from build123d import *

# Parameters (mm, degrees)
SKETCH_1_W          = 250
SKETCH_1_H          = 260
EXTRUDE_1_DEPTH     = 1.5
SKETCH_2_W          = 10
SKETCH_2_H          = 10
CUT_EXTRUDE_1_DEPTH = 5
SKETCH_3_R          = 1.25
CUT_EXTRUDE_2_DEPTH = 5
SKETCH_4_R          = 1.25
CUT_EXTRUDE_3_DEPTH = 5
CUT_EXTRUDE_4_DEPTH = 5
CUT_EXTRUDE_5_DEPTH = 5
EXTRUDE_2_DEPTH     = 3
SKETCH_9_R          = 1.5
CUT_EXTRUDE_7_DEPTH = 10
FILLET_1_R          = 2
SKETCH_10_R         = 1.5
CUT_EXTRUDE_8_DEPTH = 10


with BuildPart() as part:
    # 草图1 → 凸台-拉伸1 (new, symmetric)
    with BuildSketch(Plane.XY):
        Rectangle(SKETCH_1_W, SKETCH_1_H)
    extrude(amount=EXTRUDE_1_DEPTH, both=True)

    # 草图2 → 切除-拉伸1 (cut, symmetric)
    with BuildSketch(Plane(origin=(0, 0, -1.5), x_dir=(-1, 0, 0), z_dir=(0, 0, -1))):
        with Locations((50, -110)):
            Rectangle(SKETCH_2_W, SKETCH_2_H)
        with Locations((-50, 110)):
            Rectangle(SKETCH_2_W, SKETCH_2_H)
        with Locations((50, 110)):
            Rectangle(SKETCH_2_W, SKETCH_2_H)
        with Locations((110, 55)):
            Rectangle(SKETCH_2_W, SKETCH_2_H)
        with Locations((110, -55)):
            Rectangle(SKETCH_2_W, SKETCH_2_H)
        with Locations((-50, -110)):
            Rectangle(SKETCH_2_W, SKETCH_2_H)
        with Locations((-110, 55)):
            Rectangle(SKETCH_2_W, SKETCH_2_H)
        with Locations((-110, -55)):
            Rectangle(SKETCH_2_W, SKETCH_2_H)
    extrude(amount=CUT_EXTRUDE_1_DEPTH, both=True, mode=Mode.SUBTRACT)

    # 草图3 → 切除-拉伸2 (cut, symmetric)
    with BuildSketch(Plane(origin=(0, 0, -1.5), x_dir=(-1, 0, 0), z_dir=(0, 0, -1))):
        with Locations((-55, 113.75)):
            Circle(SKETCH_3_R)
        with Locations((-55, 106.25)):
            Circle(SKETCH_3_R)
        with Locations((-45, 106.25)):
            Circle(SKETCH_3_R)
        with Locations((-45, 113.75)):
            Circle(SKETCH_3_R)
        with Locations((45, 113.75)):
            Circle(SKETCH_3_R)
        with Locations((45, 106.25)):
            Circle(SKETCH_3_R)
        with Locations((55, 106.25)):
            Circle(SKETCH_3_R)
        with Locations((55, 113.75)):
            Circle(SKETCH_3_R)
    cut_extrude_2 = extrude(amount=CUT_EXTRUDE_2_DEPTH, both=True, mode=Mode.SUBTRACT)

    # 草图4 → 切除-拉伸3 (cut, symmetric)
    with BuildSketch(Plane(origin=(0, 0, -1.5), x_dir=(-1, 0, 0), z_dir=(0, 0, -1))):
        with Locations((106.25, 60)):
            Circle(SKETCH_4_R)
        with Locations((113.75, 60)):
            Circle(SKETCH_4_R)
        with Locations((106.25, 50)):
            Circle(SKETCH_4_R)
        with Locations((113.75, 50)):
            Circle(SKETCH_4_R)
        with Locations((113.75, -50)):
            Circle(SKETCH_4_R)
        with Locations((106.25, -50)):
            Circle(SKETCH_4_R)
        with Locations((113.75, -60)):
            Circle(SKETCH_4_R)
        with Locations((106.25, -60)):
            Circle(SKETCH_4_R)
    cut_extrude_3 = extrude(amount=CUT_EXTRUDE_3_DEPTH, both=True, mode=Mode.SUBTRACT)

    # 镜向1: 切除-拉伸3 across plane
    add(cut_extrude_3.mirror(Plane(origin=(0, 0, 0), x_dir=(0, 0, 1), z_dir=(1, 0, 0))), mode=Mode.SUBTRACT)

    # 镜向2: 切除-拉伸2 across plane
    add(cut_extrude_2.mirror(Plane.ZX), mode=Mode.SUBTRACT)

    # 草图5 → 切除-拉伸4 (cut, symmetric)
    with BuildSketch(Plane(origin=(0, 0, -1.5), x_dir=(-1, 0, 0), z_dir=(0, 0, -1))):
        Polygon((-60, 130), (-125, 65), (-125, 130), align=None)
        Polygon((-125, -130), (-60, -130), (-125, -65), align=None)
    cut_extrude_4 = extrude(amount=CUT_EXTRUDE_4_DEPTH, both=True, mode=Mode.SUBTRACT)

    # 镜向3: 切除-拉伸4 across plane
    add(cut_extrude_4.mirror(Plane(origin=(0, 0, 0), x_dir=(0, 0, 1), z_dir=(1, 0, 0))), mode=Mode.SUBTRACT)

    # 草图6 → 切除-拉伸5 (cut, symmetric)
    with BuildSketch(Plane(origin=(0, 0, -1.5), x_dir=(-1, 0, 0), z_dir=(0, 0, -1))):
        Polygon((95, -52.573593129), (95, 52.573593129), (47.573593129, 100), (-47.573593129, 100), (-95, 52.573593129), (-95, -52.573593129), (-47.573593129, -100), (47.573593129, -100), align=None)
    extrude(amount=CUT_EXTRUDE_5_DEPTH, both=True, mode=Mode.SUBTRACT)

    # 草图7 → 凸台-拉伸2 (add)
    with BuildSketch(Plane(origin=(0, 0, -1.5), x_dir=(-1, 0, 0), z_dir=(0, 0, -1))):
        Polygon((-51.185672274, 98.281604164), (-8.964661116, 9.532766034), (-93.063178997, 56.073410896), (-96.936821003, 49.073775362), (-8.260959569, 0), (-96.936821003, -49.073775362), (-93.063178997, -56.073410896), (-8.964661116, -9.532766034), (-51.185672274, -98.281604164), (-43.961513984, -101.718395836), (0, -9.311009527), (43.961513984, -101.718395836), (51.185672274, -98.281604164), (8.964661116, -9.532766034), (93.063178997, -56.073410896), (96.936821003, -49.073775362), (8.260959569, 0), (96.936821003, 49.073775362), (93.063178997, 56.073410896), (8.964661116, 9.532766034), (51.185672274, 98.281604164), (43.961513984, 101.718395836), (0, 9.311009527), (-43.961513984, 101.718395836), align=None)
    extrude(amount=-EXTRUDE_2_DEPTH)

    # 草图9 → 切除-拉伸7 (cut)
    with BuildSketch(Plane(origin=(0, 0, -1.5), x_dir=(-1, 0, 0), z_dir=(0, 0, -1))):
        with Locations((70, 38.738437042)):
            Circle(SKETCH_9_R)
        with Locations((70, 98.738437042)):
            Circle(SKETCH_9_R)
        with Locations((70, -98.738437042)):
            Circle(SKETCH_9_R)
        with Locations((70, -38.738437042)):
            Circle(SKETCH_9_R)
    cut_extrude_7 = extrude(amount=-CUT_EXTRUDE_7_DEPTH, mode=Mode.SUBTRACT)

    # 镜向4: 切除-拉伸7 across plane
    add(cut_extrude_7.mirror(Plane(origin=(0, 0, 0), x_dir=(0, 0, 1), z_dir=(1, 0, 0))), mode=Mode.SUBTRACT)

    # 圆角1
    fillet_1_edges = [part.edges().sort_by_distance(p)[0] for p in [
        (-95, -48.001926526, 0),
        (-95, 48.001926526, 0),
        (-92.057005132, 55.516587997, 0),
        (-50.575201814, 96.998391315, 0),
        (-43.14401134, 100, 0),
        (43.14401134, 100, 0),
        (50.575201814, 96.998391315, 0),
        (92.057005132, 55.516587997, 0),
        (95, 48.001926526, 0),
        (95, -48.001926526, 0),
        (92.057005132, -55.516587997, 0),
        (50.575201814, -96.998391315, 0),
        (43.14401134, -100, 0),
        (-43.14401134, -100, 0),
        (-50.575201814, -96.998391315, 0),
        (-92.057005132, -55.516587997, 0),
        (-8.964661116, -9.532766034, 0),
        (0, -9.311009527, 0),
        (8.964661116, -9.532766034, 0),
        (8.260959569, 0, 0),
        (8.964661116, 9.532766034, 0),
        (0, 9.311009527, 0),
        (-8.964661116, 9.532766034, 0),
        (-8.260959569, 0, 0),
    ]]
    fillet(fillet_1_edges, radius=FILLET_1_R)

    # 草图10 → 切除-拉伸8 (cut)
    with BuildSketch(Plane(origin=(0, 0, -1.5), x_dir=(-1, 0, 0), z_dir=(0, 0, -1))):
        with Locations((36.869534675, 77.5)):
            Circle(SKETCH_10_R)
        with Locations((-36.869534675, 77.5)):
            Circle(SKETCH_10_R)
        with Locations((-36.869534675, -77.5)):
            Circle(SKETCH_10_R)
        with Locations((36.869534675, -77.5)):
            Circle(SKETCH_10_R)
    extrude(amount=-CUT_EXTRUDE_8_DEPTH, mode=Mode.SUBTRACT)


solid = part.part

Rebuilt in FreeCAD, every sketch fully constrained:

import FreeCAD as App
import Part
import Sketcher
from FreeCAD import Vector


def edges_at(feature, points):
    """Names of the edges that pass closest to the given points."""
    edges = feature.Shape.Edges
    near = lambda p: min(range(len(edges)), key=lambda i: edges[i].distToShape(Part.Vertex(*p))[0])
    return sorted({f"Edge{near(p) + 1}" for p in points})

doc = App.newDocument("Part")
params = doc.addObject("Spreadsheet::Sheet", "Params")
for row, (alias, value) in enumerate([
    ("sketch1_width", "250 mm"),
    ("sketch1_height", "260 mm"),
    ("pad1_length", "3 mm"),
    ("sketch2_width", "10 mm"),
    ("pocket1_length", "10 mm"),
    ("sketch3_diameter", "2.5 mm"),
    ("pocket2_length", "10 mm"),
    ("sketch4_diameter", "2.5 mm"),
    ("pocket3_length", "10 mm"),
    ("sketch5_width", "65 mm"),
    ("pocket4_length", "10 mm"),
    ("pocket5_length", "10 mm"),
    ("sketch7_length", "8 mm"),
    ("pad2_length", "3 mm"),
    ("sketch8_diameter", "3 mm"),
    ("pocket6_length", "10 mm"),
    ("fillet_radius", "2 mm"),
    ("sketch9_diameter", "3 mm"),
    ("pocket7_length", "10 mm"),
], start=1):
    params.set(f"A{row}", alias)
    params.set(f"B{row}", "=" + value)
    params.setAlias(f"B{row}", alias)

body = doc.addObject("PartDesign::Body", "Body")

# Sketch on XY plane
sketch1 = body.newObject("Sketcher::SketchObject", "Sketch")
sketch1.AttachmentSupport = (doc.getObject("XY_Plane"), [""])
sketch1.MapMode = "FlatFace"
sketch1.addGeometry(Part.LineSegment(Vector(-125, 130, 0), Vector(-125, -130, 0)), False)
sketch1.addGeometry(Part.LineSegment(Vector(-125, -130, 0), Vector(125, -130, 0)), False)
sketch1.addGeometry(Part.LineSegment(Vector(125, -130, 0), Vector(125, 130, 0)), False)
sketch1.addGeometry(Part.LineSegment(Vector(125, 130, 0), Vector(-125, 130, 0)), False)
sketch1.addConstraint(Sketcher.Constraint("Coincident", 0, 2, 1, 1))
sketch1.addConstraint(Sketcher.Constraint("Coincident", 1, 2, 2, 1))
sketch1.addConstraint(Sketcher.Constraint("Coincident", 2, 2, 3, 1))
sketch1.addConstraint(Sketcher.Constraint("Coincident", 3, 2, 0, 1))
sketch1.addConstraint(Sketcher.Constraint("Vertical", 0))
sketch1.addConstraint(Sketcher.Constraint("Horizontal", 1))
sketch1.addConstraint(Sketcher.Constraint("Vertical", 2))
sketch1.addConstraint(Sketcher.Constraint("Horizontal", 3))
sketch1.addConstraint(Sketcher.Constraint("Symmetric", 0, 2, 2, 2, -1, 1))
sketch1.addConstraint(Sketcher.Constraint("DistanceX", 1, 1, 1, 2, 250.0))
sketch1.addConstraint(Sketcher.Constraint("DistanceY", 0, 2, 0, 1, 260.0))
sketch1.setExpression("Constraints[9]", "Params.sketch1_width")
sketch1.setExpression("Constraints[10]", "Params.sketch1_height")
pad1 = body.newObject("PartDesign::Pad", "Pad")
pad1.Profile = sketch1
pad1.setExpression("Length", "Params.pad1_length")
pad1.Midplane = True

# Sketch on XY plane
sketch2 = body.newObject("Sketcher::SketchObject", "Sketch001")
sketch2.AttachmentSupport = (doc.getObject("XY_Plane"), [""])
sketch2.MapMode = "FlatFace"
sketch2.AttachmentOffset = App.Placement(Vector(0, 0, -1.5), App.Rotation())
sketch2.addGeometry(Part.LineSegment(Vector(-45, -105, 0), Vector(-45, -115, 0)), False)
sketch2.addGeometry(Part.LineSegment(Vector(-45, -115, 0), Vector(-55, -115, 0)), False)
sketch2.addGeometry(Part.LineSegment(Vector(-55, -115, 0), Vector(-55, -105, 0)), False)
sketch2.addGeometry(Part.LineSegment(Vector(-55, -105, 0), Vector(-45, -105, 0)), False)
sketch2.addGeometry(Part.LineSegment(Vector(55, 115, 0), Vector(55, 105, 0)), False)
sketch2.addGeometry(Part.LineSegment(Vector(55, 105, 0), Vector(45, 105, 0)), False)
sketch2.addGeometry(Part.LineSegment(Vector(45, 105, 0), Vector(45, 115, 0)), False)
sketch2.addGeometry(Part.LineSegment(Vector(45, 115, 0), Vector(55, 115, 0)), False)
sketch2.addGeometry(Part.LineSegment(Vector(-45, 115, 0), Vector(-45, 105, 0)), False)
sketch2.addGeometry(Part.LineSegment(Vector(-45, 105, 0), Vector(-55, 105, 0)), False)
sketch2.addGeometry(Part.LineSegment(Vector(-55, 105, 0), Vector(-55, 115, 0)), False)
sketch2.addGeometry(Part.LineSegment(Vector(-55, 115, 0), Vector(-45, 115, 0)), False)
sketch2.addGeometry(Part.LineSegment(Vector(-105, 60, 0), Vector(-105, 50, 0)), False)
sketch2.addGeometry(Part.LineSegment(Vector(-105, 50, 0), Vector(-115, 50, 0)), False)
sketch2.addGeometry(Part.LineSegment(Vector(-115, 50, 0), Vector(-115, 60, 0)), False)
sketch2.addGeometry(Part.LineSegment(Vector(-115, 60, 0), Vector(-105, 60, 0)), False)
sketch2.addGeometry(Part.LineSegment(Vector(-105, -50, 0), Vector(-105, -60, 0)), False)
sketch2.addGeometry(Part.LineSegment(Vector(-105, -60, 0), Vector(-115, -60, 0)), False)
sketch2.addGeometry(Part.LineSegment(Vector(-115, -60, 0), Vector(-115, -50, 0)), False)
sketch2.addGeometry(Part.LineSegment(Vector(-115, -50, 0), Vector(-105, -50, 0)), False)
sketch2.addGeometry(Part.LineSegment(Vector(55, -105, 0), Vector(55, -115, 0)), False)
sketch2.addGeometry(Part.LineSegment(Vector(55, -115, 0), Vector(45, -115, 0)), False)
sketch2.addGeometry(Part.LineSegment(Vector(45, -115, 0), Vector(45, -105, 0)), False)
sketch2.addGeometry(Part.LineSegment(Vector(45, -105, 0), Vector(55, -105, 0)), False)
sketch2.addGeometry(Part.LineSegment(Vector(115, 60, 0), Vector(115, 50, 0)), False)
sketch2.addGeometry(Part.LineSegment(Vector(115, 50, 0), Vector(105, 50, 0)), False)
sketch2.addGeometry(Part.LineSegment(Vector(105, 50, 0), Vector(105, 60, 0)), False)
sketch2.addGeometry(Part.LineSegment(Vector(105, 60, 0), Vector(115, 60, 0)), False)
sketch2.addGeometry(Part.LineSegment(Vector(115, -50, 0), Vector(115, -60, 0)), False)
sketch2.addGeometry(Part.LineSegment(Vector(115, -60, 0), Vector(105, -60, 0)), False)
sketch2.addGeometry(Part.LineSegment(Vector(105, -60, 0), Vector(105, -50, 0)), False)
sketch2.addGeometry(Part.LineSegment(Vector(105, -50, 0), Vector(115, -50, 0)), False)
sketch2.addConstraint(Sketcher.Constraint("Coincident", 0, 2, 1, 1))
sketch2.addConstraint(Sketcher.Constraint("Coincident", 1, 2, 2, 1))
sketch2.addConstraint(Sketcher.Constraint("Coincident", 2, 2, 3, 1))
sketch2.addConstraint(Sketcher.Constraint("Coincident", 3, 2, 0, 1))
sketch2.addConstraint(Sketcher.Constraint("Coincident", 4, 2, 5, 1))
sketch2.addConstraint(Sketcher.Constraint("Coincident", 5, 2, 6, 1))
sketch2.addConstraint(Sketcher.Constraint("Coincident", 6, 2, 7, 1))
sketch2.addConstraint(Sketcher.Constraint("Coincident", 7, 2, 4, 1))
sketch2.addConstraint(Sketcher.Constraint("Coincident", 8, 2, 9, 1))
sketch2.addConstraint(Sketcher.Constraint("Coincident", 9, 2, 10, 1))
sketch2.addConstraint(Sketcher.Constraint("Coincident", 10, 2, 11, 1))
sketch2.addConstraint(Sketcher.Constraint("Coincident", 11, 2, 8, 1))
sketch2.addConstraint(Sketcher.Constraint("Coincident", 12, 2, 13, 1))
sketch2.addConstraint(Sketcher.Constraint("Coincident", 13, 2, 14, 1))
sketch2.addConstraint(Sketcher.Constraint("Coincident", 14, 2, 15, 1))
sketch2.addConstraint(Sketcher.Constraint("Coincident", 15, 2, 12, 1))
sketch2.addConstraint(Sketcher.Constraint("Coincident", 16, 2, 17, 1))
sketch2.addConstraint(Sketcher.Constraint("Coincident", 17, 2, 18, 1))
sketch2.addConstraint(Sketcher.Constraint("Coincident", 18, 2, 19, 1))
sketch2.addConstraint(Sketcher.Constraint("Coincident", 19, 2, 16, 1))
sketch2.addConstraint(Sketcher.Constraint("Coincident", 20, 2, 21, 1))
sketch2.addConstraint(Sketcher.Constraint("Coincident", 21, 2, 22, 1))
sketch2.addConstraint(Sketcher.Constraint("Coincident", 22, 2, 23, 1))
sketch2.addConstraint(Sketcher.Constraint("Coincident", 23, 2, 20, 1))
sketch2.addConstraint(Sketcher.Constraint("Coincident", 24, 2, 25, 1))
sketch2.addConstraint(Sketcher.Constraint("Coincident", 25, 2, 26, 1))
sketch2.addConstraint(Sketcher.Constraint("Coincident", 26, 2, 27, 1))
sketch2.addConstraint(Sketcher.Constraint("Coincident", 27, 2, 24, 1))
sketch2.addConstraint(Sketcher.Constraint("Coincident", 28, 2, 29, 1))
sketch2.addConstraint(Sketcher.Constraint("Coincident", 29, 2, 30, 1))
sketch2.addConstraint(Sketcher.Constraint("Coincident", 30, 2, 31, 1))
sketch2.addConstraint(Sketcher.Constraint("Coincident", 31, 2, 28, 1))
sketch2.addConstraint(Sketcher.Constraint("Vertical", 0))
sketch2.addConstraint(Sketcher.Constraint("Horizontal", 1))
sketch2.addConstraint(Sketcher.Constraint("Vertical", 2))
sketch2.addConstraint(Sketcher.Constraint("Horizontal", 3))
sketch2.addConstraint(Sketcher.Constraint("Vertical", 4))
sketch2.addConstraint(Sketcher.Constraint("Horizontal", 5))
sketch2.addConstraint(Sketcher.Constraint("Vertical", 6))
sketch2.addConstraint(Sketcher.Constraint("Horizontal", 7))
sketch2.addConstraint(Sketcher.Constraint("Vertical", 8))
sketch2.addConstraint(Sketcher.Constraint("Horizontal", 9))
sketch2.addConstraint(Sketcher.Constraint("Vertical", 10))
sketch2.addConstraint(Sketcher.Constraint("Horizontal", 11))
sketch2.addConstraint(Sketcher.Constraint("Vertical", 12))
sketch2.addConstraint(Sketcher.Constraint("Horizontal", 13))
sketch2.addConstraint(Sketcher.Constraint("Vertical", 14))
sketch2.addConstraint(Sketcher.Constraint("Horizontal", 15))
sketch2.addConstraint(Sketcher.Constraint("Vertical", 16))
sketch2.addConstraint(Sketcher.Constraint("Horizontal", 17))
sketch2.addConstraint(Sketcher.Constraint("Vertical", 18))
sketch2.addConstraint(Sketcher.Constraint("Horizontal", 19))
sketch2.addConstraint(Sketcher.Constraint("Vertical", 20))
sketch2.addConstraint(Sketcher.Constraint("Horizontal", 21))
sketch2.addConstraint(Sketcher.Constraint("Vertical", 22))
sketch2.addConstraint(Sketcher.Constraint("Horizontal", 23))
sketch2.addConstraint(Sketcher.Constraint("Vertical", 24))
sketch2.addConstraint(Sketcher.Constraint("Horizontal", 25))
sketch2.addConstraint(Sketcher.Constraint("Vertical", 26))
sketch2.addConstraint(Sketcher.Constraint("Horizontal", 27))
sketch2.addConstraint(Sketcher.Constraint("Vertical", 28))
sketch2.addConstraint(Sketcher.Constraint("Horizontal", 29))
sketch2.addConstraint(Sketcher.Constraint("Vertical", 30))
sketch2.addConstraint(Sketcher.Constraint("Horizontal", 31))
sketch2.addConstraint(Sketcher.Constraint("Symmetric", 2, 2, 4, 2, -1, 1))
sketch2.addConstraint(Sketcher.Constraint("Symmetric", 0, 2, 6, 2, -1, 1))
sketch2.addConstraint(Sketcher.Constraint("Symmetric", 10, 2, 20, 2, -1, 1))
sketch2.addConstraint(Sketcher.Constraint("Symmetric", 8, 2, 22, 2, -1, 1))
sketch2.addConstraint(Sketcher.Constraint("Symmetric", 18, 2, 24, 2, -1, 1))
sketch2.addConstraint(Sketcher.Constraint("Symmetric", 16, 2, 26, 2, -1, 1))
sketch2.addConstraint(Sketcher.Constraint("Symmetric", 14, 2, 28, 2, -1, 1))
sketch2.addConstraint(Sketcher.Constraint("Symmetric", 12, 2, 30, 2, -1, 1))
sketch2.addConstraint(Sketcher.Constraint("Symmetric", 5, 2, 8, 2, -2))
sketch2.addConstraint(Sketcher.Constraint("Symmetric", 7, 2, 10, 2, -2))
sketch2.addConstraint(Sketcher.Constraint("Symmetric", 13, 2, 24, 2, -2))
sketch2.addConstraint(Sketcher.Constraint("Symmetric", 15, 2, 26, 2, -2))
sketch2.addConstraint(Sketcher.Constraint("Equal", 11, 13))
sketch2.addConstraint(Sketcher.Constraint("Equal", 31, 0))
sketch2.addConstraint(Sketcher.Constraint("Equal", 10, 12))
sketch2.addConstraint(Sketcher.Constraint("DistanceX", 1, 2, 1, 1, 10.0))
sketch2.addConstraint(Sketcher.Constraint("DistanceX", 0, 2, -1, 1, 45.0))
sketch2.addConstraint(Sketcher.Constraint("DistanceY", 0, 2, -1, 1, 115.0))
sketch2.addConstraint(Sketcher.Constraint("DistanceX", 12, 2, -1, 1, 105.0))
sketch2.addConstraint(Sketcher.Constraint("DistanceY", -1, 1, 12, 2, 50.0))
sketch2.setExpression("Constraints[79]", "Params.sketch2_width")
pocket1 = body.newObject("PartDesign::Pocket", "Pocket")
pocket1.Profile = sketch2
pocket1.setExpression("Length", "Params.pocket1_length")
pocket1.Midplane = True

# Sketch on XY plane
sketch3 = body.newObject("Sketcher::SketchObject", "Sketch002")
sketch3.AttachmentSupport = (doc.getObject("XY_Plane"), [""])
sketch3.MapMode = "FlatFace"
sketch3.AttachmentOffset = App.Placement(Vector(0, 0, -1.5), App.Rotation())
sketch3.addGeometry(Part.Circle(Vector(55, 113.8, 0), Vector(0, 0, 1), 1.2), False)
sketch3.addGeometry(Part.Circle(Vector(55, 106.2, 0), Vector(0, 0, 1), 1.2), False)
sketch3.addGeometry(Part.Circle(Vector(45, 106.2, 0), Vector(0, 0, 1), 1.2), False)
sketch3.addGeometry(Part.Circle(Vector(45, 113.8, 0), Vector(0, 0, 1), 1.2), False)
sketch3.addGeometry(Part.Circle(Vector(-45, 113.8, 0), Vector(0, 0, 1), 1.2), False)
sketch3.addGeometry(Part.Circle(Vector(-45, 106.2, 0), Vector(0, 0, 1), 1.2), False)
sketch3.addGeometry(Part.Circle(Vector(-55, 106.2, 0), Vector(0, 0, 1), 1.2), False)
sketch3.addGeometry(Part.Circle(Vector(-55, 113.8, 0), Vector(0, 0, 1), 1.2), False)
sketch3.addConstraint(Sketcher.Constraint("Equal", 0, 1))
sketch3.addConstraint(Sketcher.Constraint("Equal", 1, 2))
sketch3.addConstraint(Sketcher.Constraint("Equal", 2, 3))
sketch3.addConstraint(Sketcher.Constraint("Equal", 3, 4))
sketch3.addConstraint(Sketcher.Constraint("Equal", 4, 5))
sketch3.addConstraint(Sketcher.Constraint("Equal", 5, 6))
sketch3.addConstraint(Sketcher.Constraint("Equal", 6, 7))
sketch3.addConstraint(Sketcher.Constraint("Symmetric", 3, 3, 4, 3, -2))
sketch3.addConstraint(Sketcher.Constraint("Symmetric", 2, 3, 5, 3, -2))
sketch3.addConstraint(Sketcher.Constraint("Symmetric", 1, 3, 6, 3, -2))
sketch3.addConstraint(Sketcher.Constraint("Symmetric", 0, 3, 7, 3, -2))
sketch3.addConstraint(Sketcher.Constraint("Horizontal", 1, 3, 2, 3))
sketch3.addConstraint(Sketcher.Constraint("Horizontal", 0, 3, 3, 3))
sketch3.addConstraint(Sketcher.Constraint("Vertical", 0, 3, 1, 3))
sketch3.addConstraint(Sketcher.Constraint("Vertical", 2, 3, 3, 3))
sketch3.addConstraint(Sketcher.Constraint("Diameter", 0, 2.5))
sketch3.addConstraint(Sketcher.Constraint("DistanceX", -1, 1, 0, 3, 55.0))
sketch3.addConstraint(Sketcher.Constraint("DistanceX", -1, 1, 2, 3, 45.0))
sketch3.addConstraint(Sketcher.Constraint("DistanceY", 1, 3, 0, 3, 7.5))
sketch3.addConstraint(Sketcher.Constraint("DistanceY", -1, 1, 0, 3, 113.75))
sketch3.setExpression("Constraints[15]", "Params.sketch3_diameter")
pocket2 = body.newObject("PartDesign::Pocket", "Pocket001")
pocket2.Profile = sketch3
pocket2.setExpression("Length", "Params.pocket2_length")
pocket2.Midplane = True

# Sketch on XY plane
sketch4 = body.newObject("Sketcher::SketchObject", "Sketch003")
sketch4.AttachmentSupport = (doc.getObject("XY_Plane"), [""])
sketch4.MapMode = "FlatFace"
sketch4.AttachmentOffset = App.Placement(Vector(0, 0, -1.5), App.Rotation())
sketch4.addGeometry(Part.Circle(Vector(-106.2, 60, 0), Vector(0, 0, 1), 1.2), False)
sketch4.addGeometry(Part.Circle(Vector(-113.8, 60, 0), Vector(0, 0, 1), 1.2), False)
sketch4.addGeometry(Part.Circle(Vector(-106.2, 50, 0), Vector(0, 0, 1), 1.2), False)
sketch4.addGeometry(Part.Circle(Vector(-113.8, 50, 0), Vector(0, 0, 1), 1.2), False)
sketch4.addGeometry(Part.Circle(Vector(-113.8, -50, 0), Vector(0, 0, 1), 1.2), False)
sketch4.addGeometry(Part.Circle(Vector(-106.2, -50, 0), Vector(0, 0, 1), 1.2), False)
sketch4.addGeometry(Part.Circle(Vector(-113.8, -60, 0), Vector(0, 0, 1), 1.2), False)
sketch4.addGeometry(Part.Circle(Vector(-106.2, -60, 0), Vector(0, 0, 1), 1.2), False)
sketch4.addConstraint(Sketcher.Constraint("Equal", 0, 1))
sketch4.addConstraint(Sketcher.Constraint("Equal", 1, 2))
sketch4.addConstraint(Sketcher.Constraint("Equal", 2, 3))
sketch4.addConstraint(Sketcher.Constraint("Equal", 3, 4))
sketch4.addConstraint(Sketcher.Constraint("Equal", 4, 5))
sketch4.addConstraint(Sketcher.Constraint("Equal", 5, 6))
sketch4.addConstraint(Sketcher.Constraint("Equal", 6, 7))
sketch4.addConstraint(Sketcher.Constraint("Symmetric", 3, 3, 4, 3, -1))
sketch4.addConstraint(Sketcher.Constraint("Symmetric", 2, 3, 5, 3, -1))
sketch4.addConstraint(Sketcher.Constraint("Symmetric", 1, 3, 6, 3, -1))
sketch4.addConstraint(Sketcher.Constraint("Symmetric", 0, 3, 7, 3, -1))
sketch4.addConstraint(Sketcher.Constraint("Horizontal", 0, 3, 1, 3))
sketch4.addConstraint(Sketcher.Constraint("Horizontal", 2, 3, 3, 3))
sketch4.addConstraint(Sketcher.Constraint("Vertical", 0, 3, 2, 3))
sketch4.addConstraint(Sketcher.Constraint("Vertical", 1, 3, 3, 3))
sketch4.addConstraint(Sketcher.Constraint("Diameter", 0, 2.5))
sketch4.addConstraint(Sketcher.Constraint("DistanceY", -1, 1, 0, 3, 60.0))
sketch4.addConstraint(Sketcher.Constraint("DistanceY", -1, 1, 2, 3, 50.0))
sketch4.addConstraint(Sketcher.Constraint("DistanceX", 1, 3, 0, 3, 7.5))
sketch4.addConstraint(Sketcher.Constraint("DistanceX", 0, 3, -1, 1, 106.25))
sketch4.setExpression("Constraints[15]", "Params.sketch4_diameter")
pocket3 = body.newObject("PartDesign::Pocket", "Pocket002")
pocket3.Profile = sketch4
pocket3.setExpression("Length", "Params.pocket3_length")
pocket3.Midplane = True
doc.recompute()

mirrored = body.newObject("PartDesign::Mirrored", "Mirrored")
mirrored.Originals = [pocket3]
mirrored.MirrorPlane = (doc.getObject("YZ_Plane"), [""])
body.Tip = mirrored
doc.recompute()

mirrored2 = body.newObject("PartDesign::Mirrored", "Mirrored001")
mirrored2.Originals = [pocket2]
mirrored2.MirrorPlane = (doc.getObject("XZ_Plane"), [""])
body.Tip = mirrored2

# Sketch on XY plane
sketch5 = body.newObject("Sketcher::SketchObject", "Sketch004")
sketch5.AttachmentSupport = (doc.getObject("XY_Plane"), [""])
sketch5.MapMode = "FlatFace"
sketch5.AttachmentOffset = App.Placement(Vector(0, 0, -1.5), App.Rotation())
sketch5.addGeometry(Part.LineSegment(Vector(125, 65, 0), Vector(60, 130, 0)), False)
sketch5.addGeometry(Part.LineSegment(Vector(60, 130, 0), Vector(125, 130, 0)), False)
sketch5.addGeometry(Part.LineSegment(Vector(125, 130, 0), Vector(125, 65, 0)), False)
sketch5.addGeometry(Part.LineSegment(Vector(125, -130, 0), Vector(60, -130, 0)), False)
sketch5.addGeometry(Part.LineSegment(Vector(60, -130, 0), Vector(125, -65, 0)), False)
sketch5.addGeometry(Part.LineSegment(Vector(125, -65, 0), Vector(125, -130, 0)), False)
sketch5.addConstraint(Sketcher.Constraint("Coincident", 0, 2, 1, 1))
sketch5.addConstraint(Sketcher.Constraint("Coincident", 1, 2, 2, 1))
sketch5.addConstraint(Sketcher.Constraint("Coincident", 2, 2, 0, 1))
sketch5.addConstraint(Sketcher.Constraint("Coincident", 3, 2, 4, 1))
sketch5.addConstraint(Sketcher.Constraint("Coincident", 4, 2, 5, 1))
sketch5.addConstraint(Sketcher.Constraint("Coincident", 5, 2, 3, 1))
sketch5.addConstraint(Sketcher.Constraint("Horizontal", 1))
sketch5.addConstraint(Sketcher.Constraint("Vertical", 2))
sketch5.addConstraint(Sketcher.Constraint("Horizontal", 3))
sketch5.addConstraint(Sketcher.Constraint("Vertical", 5))
sketch5.addConstraint(Sketcher.Constraint("Symmetric", 0, 2, 3, 2, -1))
sketch5.addConstraint(Sketcher.Constraint("Symmetric", 2, 2, 4, 2, -1))
sketch5.addConstraint(Sketcher.Constraint("Perpendicular", 0, 4))
sketch5.addConstraint(Sketcher.Constraint("DistanceX", 1, 1, 1, 2, 65.0))
sketch5.addConstraint(Sketcher.Constraint("DistanceX", -1, 1, 0, 2, 60.0))
sketch5.addConstraint(Sketcher.Constraint("DistanceY", -1, 1, 0, 2, 130.0))
sketch5.setExpression("Constraints[13]", "Params.sketch5_width")
pocket4 = body.newObject("PartDesign::Pocket", "Pocket003")
pocket4.Profile = sketch5
pocket4.setExpression("Length", "Params.pocket4_length")
pocket4.Midplane = True
doc.recompute()

mirrored3 = body.newObject("PartDesign::Mirrored", "Mirrored002")
mirrored3.Originals = [pocket4]
mirrored3.MirrorPlane = (doc.getObject("YZ_Plane"), [""])
body.Tip = mirrored3

# Sketch on XY plane
sketch6 = body.newObject("Sketcher::SketchObject", "Sketch005")
sketch6.AttachmentSupport = (doc.getObject("XY_Plane"), [""])
sketch6.MapMode = "FlatFace"
sketch6.AttachmentOffset = App.Placement(Vector(0, 0, -1.5), App.Rotation())
sketch6.addGeometry(Part.LineSegment(Vector(-95, -53, 0), Vector(-95, 53, 0)), False)
sketch6.addGeometry(Part.LineSegment(Vector(-95, 53, 0), Vector(-48, 100, 0)), False)
sketch6.addGeometry(Part.LineSegment(Vector(-48, 100, 0), Vector(48, 100, 0)), False)
sketch6.addGeometry(Part.LineSegment(Vector(48, 100, 0), Vector(95, 53, 0)), False)
sketch6.addGeometry(Part.LineSegment(Vector(95, 53, 0), Vector(95, -53, 0)), False)
sketch6.addGeometry(Part.LineSegment(Vector(95, -53, 0), Vector(48, -100, 0)), False)
sketch6.addGeometry(Part.LineSegment(Vector(48, -100, 0), Vector(-48, -100, 0)), False)
sketch6.addGeometry(Part.LineSegment(Vector(-48, -100, 0), Vector(-95, -53, 0)), False)
sketch6.addConstraint(Sketcher.Constraint("Coincident", 0, 2, 1, 1))
sketch6.addConstraint(Sketcher.Constraint("Coincident", 1, 2, 2, 1))
sketch6.addConstraint(Sketcher.Constraint("Coincident", 2, 2, 3, 1))
sketch6.addConstraint(Sketcher.Constraint("Coincident", 3, 2, 4, 1))
sketch6.addConstraint(Sketcher.Constraint("Coincident", 4, 2, 5, 1))
sketch6.addConstraint(Sketcher.Constraint("Coincident", 5, 2, 6, 1))
sketch6.addConstraint(Sketcher.Constraint("Coincident", 6, 2, 7, 1))
sketch6.addConstraint(Sketcher.Constraint("Coincident", 7, 2, 0, 1))
sketch6.addConstraint(Sketcher.Constraint("Vertical", 0))
sketch6.addConstraint(Sketcher.Constraint("Horizontal", 2))
sketch6.addConstraint(Sketcher.Constraint("Vertical", 4))
sketch6.addConstraint(Sketcher.Constraint("Horizontal", 6))
sketch6.addConstraint(Sketcher.Constraint("Symmetric", 0, 2, 4, 2, -1, 1))
sketch6.addConstraint(Sketcher.Constraint("Symmetric", 1, 2, 5, 2, -1, 1))
sketch6.addConstraint(Sketcher.Constraint("Perpendicular", 1, 3))
sketch6.addConstraint(Sketcher.Constraint("Perpendicular", 5, 7))
sketch6.addConstraint(Sketcher.Constraint("Horizontal", 0, 2, 3, 2))
sketch6.addConstraint(Sketcher.Constraint("Horizontal", 4, 2, 7, 2))
sketch6.addConstraint(Sketcher.Constraint("Vertical", 2, 2, 5, 2))
sketch6.addConstraint(Sketcher.Constraint("DistanceX", 0, 2, -1, 1, 95.0))
sketch6.addConstraint(Sketcher.Constraint("DistanceY", -1, 1, 1, 2, 100.0))
sketch6.addConstraint(Sketcher.Constraint("DistanceX", 2, 1, 2, 2, 95.147186))
pocket5 = body.newObject("PartDesign::Pocket", "Pocket004")
pocket5.Profile = sketch6
pocket5.setExpression("Length", "Params.pocket5_length")
pocket5.Midplane = True

# Sketch on XY plane
sketch7 = body.newObject("Sketcher::SketchObject", "Sketch006")
sketch7.AttachmentSupport = (doc.getObject("XY_Plane"), [""])
sketch7.MapMode = "FlatFace"
sketch7.AttachmentOffset = App.Placement(Vector(0, 0, -1.5), App.Rotation())
sketch7.addGeometry(Part.LineSegment(Vector(51, 98, 0), Vector(9, 10, 0)), False)
sketch7.addGeometry(Part.LineSegment(Vector(9, 10, 0), Vector(93, 56, 0)), False)
sketch7.addGeometry(Part.LineSegment(Vector(93, 56, 0), Vector(97, 49, 0)), False)
sketch7.addGeometry(Part.LineSegment(Vector(97, 49, 0), Vector(8, 0, 0)), False)
sketch7.addGeometry(Part.LineSegment(Vector(8, 0, 0), Vector(97, -49, 0)), False)
sketch7.addGeometry(Part.LineSegment(Vector(97, -49, 0), Vector(93, -56, 0)), False)
sketch7.addGeometry(Part.LineSegment(Vector(93, -56, 0), Vector(9, -10, 0)), False)
sketch7.addGeometry(Part.LineSegment(Vector(9, -10, 0), Vector(51, -98, 0)), False)
sketch7.addGeometry(Part.LineSegment(Vector(51, -98, 0), Vector(44, -102, 0)), False)
sketch7.addGeometry(Part.LineSegment(Vector(44, -102, 0), Vector(0, -9, 0)), False)
sketch7.addGeometry(Part.LineSegment(Vector(0, -9, 0), Vector(-44, -102, 0)), False)
sketch7.addGeometry(Part.LineSegment(Vector(-44, -102, 0), Vector(-51, -98, 0)), False)
sketch7.addGeometry(Part.LineSegment(Vector(-51, -98, 0), Vector(-9, -10, 0)), False)
sketch7.addGeometry(Part.LineSegment(Vector(-9, -10, 0), Vector(-93, -56, 0)), False)
sketch7.addGeometry(Part.LineSegment(Vector(-93, -56, 0), Vector(-97, -49, 0)), False)
sketch7.addGeometry(Part.LineSegment(Vector(-97, -49, 0), Vector(-8, 0, 0)), False)
sketch7.addGeometry(Part.LineSegment(Vector(-8, 0, 0), Vector(-97, 49, 0)), False)
sketch7.addGeometry(Part.LineSegment(Vector(-97, 49, 0), Vector(-93, 56, 0)), False)
sketch7.addGeometry(Part.LineSegment(Vector(-93, 56, 0), Vector(-9, 10, 0)), False)
sketch7.addGeometry(Part.LineSegment(Vector(-9, 10, 0), Vector(-51, 98, 0)), False)
sketch7.addGeometry(Part.LineSegment(Vector(-51, 98, 0), Vector(-44, 102, 0)), False)
sketch7.addGeometry(Part.LineSegment(Vector(-44, 102, 0), Vector(0, 9, 0)), False)
sketch7.addGeometry(Part.LineSegment(Vector(0, 9, 0), Vector(44, 102, 0)), False)
sketch7.addGeometry(Part.LineSegment(Vector(44, 102, 0), Vector(51, 98, 0)), False)
sketch7.addConstraint(Sketcher.Constraint("Coincident", 0, 2, 1, 1))
sketch7.addConstraint(Sketcher.Constraint("Coincident", 1, 2, 2, 1))
sketch7.addConstraint(Sketcher.Constraint("Coincident", 2, 2, 3, 1))
sketch7.addConstraint(Sketcher.Constraint("Coincident", 3, 2, 4, 1))
sketch7.addConstraint(Sketcher.Constraint("Coincident", 4, 2, 5, 1))
sketch7.addConstraint(Sketcher.Constraint("Coincident", 5, 2, 6, 1))
sketch7.addConstraint(Sketcher.Constraint("Coincident", 6, 2, 7, 1))
sketch7.addConstraint(Sketcher.Constraint("Coincident", 7, 2, 8, 1))
sketch7.addConstraint(Sketcher.Constraint("Coincident", 8, 2, 9, 1))
sketch7.addConstraint(Sketcher.Constraint("Coincident", 9, 2, 10, 1))
sketch7.addConstraint(Sketcher.Constraint("Coincident", 10, 2, 11, 1))
sketch7.addConstraint(Sketcher.Constraint("Coincident", 11, 2, 12, 1))
sketch7.addConstraint(Sketcher.Constraint("Coincident", 12, 2, 13, 1))
sketch7.addConstraint(Sketcher.Constraint("Coincident", 13, 2, 14, 1))
sketch7.addConstraint(Sketcher.Constraint("Coincident", 14, 2, 15, 1))
sketch7.addConstraint(Sketcher.Constraint("Coincident", 15, 2, 16, 1))
sketch7.addConstraint(Sketcher.Constraint("Coincident", 16, 2, 17, 1))
sketch7.addConstraint(Sketcher.Constraint("Coincident", 17, 2, 18, 1))
sketch7.addConstraint(Sketcher.Constraint("Coincident", 18, 2, 19, 1))
sketch7.addConstraint(Sketcher.Constraint("Coincident", 19, 2, 20, 1))
sketch7.addConstraint(Sketcher.Constraint("Coincident", 20, 2, 21, 1))
sketch7.addConstraint(Sketcher.Constraint("Coincident", 21, 2, 22, 1))
sketch7.addConstraint(Sketcher.Constraint("Coincident", 22, 2, 23, 1))
sketch7.addConstraint(Sketcher.Constraint("Coincident", 23, 2, 0, 1))
sketch7.addConstraint(Sketcher.Constraint("Symmetric", 0, 2, 12, 2, -1, 1))
sketch7.addConstraint(Sketcher.Constraint("Symmetric", 1, 2, 13, 2, -1, 1))
sketch7.addConstraint(Sketcher.Constraint("Symmetric", 2, 2, 14, 2, -1, 1))
sketch7.addConstraint(Sketcher.Constraint("Symmetric", 3, 2, 15, 2, -1, 1))
sketch7.addConstraint(Sketcher.Constraint("Symmetric", 4, 2, 16, 2, -1, 1))
sketch7.addConstraint(Sketcher.Constraint("Symmetric", 5, 2, 17, 2, -1, 1))
sketch7.addConstraint(Sketcher.Constraint("Symmetric", 6, 2, 18, 2, -1, 1))
sketch7.addConstraint(Sketcher.Constraint("Symmetric", 7, 2, 19, 2, -1, 1))
sketch7.addConstraint(Sketcher.Constraint("Symmetric", 8, 2, 20, 2, -1, 1))
sketch7.addConstraint(Sketcher.Constraint("Symmetric", 9, 2, 21, 2, -1, 1))
sketch7.addConstraint(Sketcher.Constraint("Symmetric", 10, 2, 22, 2, -1, 1))
sketch7.addConstraint(Sketcher.Constraint("Symmetric", 11, 2, 23, 2, -1, 1))
sketch7.addConstraint(Sketcher.Constraint("Symmetric", 8, 2, 10, 2, -2))
sketch7.addConstraint(Sketcher.Constraint("Symmetric", 7, 2, 11, 2, -2))
sketch7.addConstraint(Sketcher.Constraint("Symmetric", 6, 2, 12, 2, -2))
sketch7.addConstraint(Sketcher.Constraint("Symmetric", 5, 2, 13, 2, -2))
sketch7.addConstraint(Sketcher.Constraint("Symmetric", 4, 2, 14, 2, -2))
sketch7.addConstraint(Sketcher.Constraint("PointOnObject", 3, 2, -1))
sketch7.addConstraint(Sketcher.Constraint("PointOnObject", 9, 2, -2))
sketch7.addConstraint(Sketcher.Constraint("Perpendicular", 1, 2))
sketch7.addConstraint(Sketcher.Constraint("Perpendicular", 2, 3))
sketch7.addConstraint(Sketcher.Constraint("Perpendicular", 7, 8))
sketch7.addConstraint(Sketcher.Constraint("Perpendicular", 8, 9))
sketch7.addConstraint(Sketcher.Constraint("Equal", 5, 8))
sketch7.addConstraint(Sketcher.Constraint("Distance", 2, 8.0))
sketch7.addConstraint(Sketcher.Constraint("DistanceX", 3, 2, 0, 2, 0.703702))
sketch7.addConstraint(Sketcher.Constraint("DistanceY", 13, 2, 9, 2, 46.762401))
sketch7.addConstraint(Sketcher.Constraint("Distance", 0, 98.280059))
sketch7.addConstraint(Sketcher.Constraint("Distance", 3, 101.349119))
sketch7.addConstraint(Sketcher.Constraint("Distance", 9, 102.331519))
sketch7.addConstraint(Sketcher.Constraint("DistanceX", -1, 1, 1, 2, 93.063179))
sketch7.setExpression("Constraints[48]", "Params.sketch7_length")
pad2 = body.newObject("PartDesign::Pad", "Pad001")
pad2.Profile = sketch7
pad2.setExpression("Length", "Params.pad2_length")

# Sketch on XY plane
sketch8 = body.newObject("Sketcher::SketchObject", "Sketch007")
sketch8.AttachmentSupport = (doc.getObject("XY_Plane"), [""])
sketch8.MapMode = "FlatFace"
sketch8.AttachmentOffset = App.Placement(Vector(0, 0, -1.5), App.Rotation())
sketch8.addGeometry(Part.Circle(Vector(-70, 38.7, 0), Vector(0, 0, 1), 1.5), False)
sketch8.addGeometry(Part.Circle(Vector(-70, 98.7, 0), Vector(0, 0, 1), 1.5), False)
sketch8.addGeometry(Part.Circle(Vector(-70, -98.7, 0), Vector(0, 0, 1), 1.5), False)
sketch8.addGeometry(Part.Circle(Vector(-70, -38.7, 0), Vector(0, 0, 1), 1.5), False)
sketch8.addConstraint(Sketcher.Constraint("Equal", 0, 1))
sketch8.addConstraint(Sketcher.Constraint("Equal", 1, 2))
sketch8.addConstraint(Sketcher.Constraint("Equal", 2, 3))
sketch8.addConstraint(Sketcher.Constraint("Symmetric", 1, 3, 2, 3, -1))
sketch8.addConstraint(Sketcher.Constraint("Symmetric", 0, 3, 3, 3, -1))
sketch8.addConstraint(Sketcher.Constraint("Vertical", 0, 3, 1, 3))
sketch8.addConstraint(Sketcher.Constraint("Diameter", 0, 3.0))
sketch8.addConstraint(Sketcher.Constraint("DistanceX", 0, 3, -1, 1, 70.0))
sketch8.addConstraint(Sketcher.Constraint("DistanceY", 0, 3, 1, 3, 60.0))
sketch8.addConstraint(Sketcher.Constraint("DistanceY", -1, 1, 0, 3, 38.738437))
sketch8.setExpression("Constraints[6]", "Params.sketch8_diameter")
pocket6 = body.newObject("PartDesign::Pocket", "Pocket005")
pocket6.Profile = sketch8
pocket6.setExpression("Length", "Params.pocket6_length")
pocket6.Reversed = True
doc.recompute()

mirrored4 = body.newObject("PartDesign::Mirrored", "Mirrored003")
mirrored4.Originals = [pocket6]
mirrored4.MirrorPlane = (doc.getObject("YZ_Plane"), [""])
body.Tip = mirrored4
doc.recompute()

fillet = body.newObject("PartDesign::Fillet", "Fillet")
fillet.Base = (mirrored4, edges_at(mirrored4, [
    (-95, -48.002, 0),
    (-95, 48.002, 0),
    (-92.057, 55.517, 0),
    (-50.575, 96.998, 0),
    (-43.144, 100, 0),
    (43.144, 100, 0),
    (50.575, 96.998, 0),
    (92.057, 55.517, 0),
    (95, 48.002, 0),
    (95, -48.002, 0),
    (92.057, -55.517, 0),
    (50.575, -96.998, 0),
    (43.144, -100, 0),
    (-43.144, -100, 0),
    (-50.575, -96.998, 0),
    (-92.057, -55.517, 0),
    (-8.965, -9.533, 0),
    (0, -9.311, 0),
    (8.965, -9.533, 0),
    (8.261, 0, 0),
    (8.965, 9.533, 0),
    (0, 9.311, 0),
    (-8.965, 9.533, 0),
    (-8.261, 0, 0),
]))
fillet.setExpression("Radius", "Params.fillet_radius")

# Sketch on XY plane
sketch9 = body.newObject("Sketcher::SketchObject", "Sketch008")
sketch9.AttachmentSupport = (doc.getObject("XY_Plane"), [""])
sketch9.MapMode = "FlatFace"
sketch9.AttachmentOffset = App.Placement(Vector(0, 0, -1.5), App.Rotation())
sketch9.addGeometry(Part.Circle(Vector(-36.9, 77.5, 0), Vector(0, 0, 1), 1.5), False)
sketch9.addGeometry(Part.Circle(Vector(36.9, 77.5, 0), Vector(0, 0, 1), 1.5), False)
sketch9.addGeometry(Part.Circle(Vector(36.9, -77.5, 0), Vector(0, 0, 1), 1.5), False)
sketch9.addGeometry(Part.Circle(Vector(-36.9, -77.5, 0), Vector(0, 0, 1), 1.5), False)
sketch9.addConstraint(Sketcher.Constraint("Equal", 0, 1))
sketch9.addConstraint(Sketcher.Constraint("Equal", 1, 2))
sketch9.addConstraint(Sketcher.Constraint("Equal", 2, 3))
sketch9.addConstraint(Sketcher.Constraint("Symmetric", 0, 3, 2, 3, -1, 1))
sketch9.addConstraint(Sketcher.Constraint("Symmetric", 1, 3, 3, 3, -1, 1))
sketch9.addConstraint(Sketcher.Constraint("Symmetric", 0, 3, 1, 3, -2))
sketch9.addConstraint(Sketcher.Constraint("Diameter", 0, 3.0))
sketch9.addConstraint(Sketcher.Constraint("DistanceY", 2, 3, 1, 3, 155.0))
sketch9.addConstraint(Sketcher.Constraint("DistanceX", 0, 3, 1, 3, 73.739069))
sketch9.setExpression("Constraints[6]", "Params.sketch9_diameter")
pocket7 = body.newObject("PartDesign::Pocket", "Pocket006")
pocket7.Profile = sketch9
pocket7.setExpression("Length", "Params.pocket7_length")
pocket7.Reversed = True

doc.recompute()
